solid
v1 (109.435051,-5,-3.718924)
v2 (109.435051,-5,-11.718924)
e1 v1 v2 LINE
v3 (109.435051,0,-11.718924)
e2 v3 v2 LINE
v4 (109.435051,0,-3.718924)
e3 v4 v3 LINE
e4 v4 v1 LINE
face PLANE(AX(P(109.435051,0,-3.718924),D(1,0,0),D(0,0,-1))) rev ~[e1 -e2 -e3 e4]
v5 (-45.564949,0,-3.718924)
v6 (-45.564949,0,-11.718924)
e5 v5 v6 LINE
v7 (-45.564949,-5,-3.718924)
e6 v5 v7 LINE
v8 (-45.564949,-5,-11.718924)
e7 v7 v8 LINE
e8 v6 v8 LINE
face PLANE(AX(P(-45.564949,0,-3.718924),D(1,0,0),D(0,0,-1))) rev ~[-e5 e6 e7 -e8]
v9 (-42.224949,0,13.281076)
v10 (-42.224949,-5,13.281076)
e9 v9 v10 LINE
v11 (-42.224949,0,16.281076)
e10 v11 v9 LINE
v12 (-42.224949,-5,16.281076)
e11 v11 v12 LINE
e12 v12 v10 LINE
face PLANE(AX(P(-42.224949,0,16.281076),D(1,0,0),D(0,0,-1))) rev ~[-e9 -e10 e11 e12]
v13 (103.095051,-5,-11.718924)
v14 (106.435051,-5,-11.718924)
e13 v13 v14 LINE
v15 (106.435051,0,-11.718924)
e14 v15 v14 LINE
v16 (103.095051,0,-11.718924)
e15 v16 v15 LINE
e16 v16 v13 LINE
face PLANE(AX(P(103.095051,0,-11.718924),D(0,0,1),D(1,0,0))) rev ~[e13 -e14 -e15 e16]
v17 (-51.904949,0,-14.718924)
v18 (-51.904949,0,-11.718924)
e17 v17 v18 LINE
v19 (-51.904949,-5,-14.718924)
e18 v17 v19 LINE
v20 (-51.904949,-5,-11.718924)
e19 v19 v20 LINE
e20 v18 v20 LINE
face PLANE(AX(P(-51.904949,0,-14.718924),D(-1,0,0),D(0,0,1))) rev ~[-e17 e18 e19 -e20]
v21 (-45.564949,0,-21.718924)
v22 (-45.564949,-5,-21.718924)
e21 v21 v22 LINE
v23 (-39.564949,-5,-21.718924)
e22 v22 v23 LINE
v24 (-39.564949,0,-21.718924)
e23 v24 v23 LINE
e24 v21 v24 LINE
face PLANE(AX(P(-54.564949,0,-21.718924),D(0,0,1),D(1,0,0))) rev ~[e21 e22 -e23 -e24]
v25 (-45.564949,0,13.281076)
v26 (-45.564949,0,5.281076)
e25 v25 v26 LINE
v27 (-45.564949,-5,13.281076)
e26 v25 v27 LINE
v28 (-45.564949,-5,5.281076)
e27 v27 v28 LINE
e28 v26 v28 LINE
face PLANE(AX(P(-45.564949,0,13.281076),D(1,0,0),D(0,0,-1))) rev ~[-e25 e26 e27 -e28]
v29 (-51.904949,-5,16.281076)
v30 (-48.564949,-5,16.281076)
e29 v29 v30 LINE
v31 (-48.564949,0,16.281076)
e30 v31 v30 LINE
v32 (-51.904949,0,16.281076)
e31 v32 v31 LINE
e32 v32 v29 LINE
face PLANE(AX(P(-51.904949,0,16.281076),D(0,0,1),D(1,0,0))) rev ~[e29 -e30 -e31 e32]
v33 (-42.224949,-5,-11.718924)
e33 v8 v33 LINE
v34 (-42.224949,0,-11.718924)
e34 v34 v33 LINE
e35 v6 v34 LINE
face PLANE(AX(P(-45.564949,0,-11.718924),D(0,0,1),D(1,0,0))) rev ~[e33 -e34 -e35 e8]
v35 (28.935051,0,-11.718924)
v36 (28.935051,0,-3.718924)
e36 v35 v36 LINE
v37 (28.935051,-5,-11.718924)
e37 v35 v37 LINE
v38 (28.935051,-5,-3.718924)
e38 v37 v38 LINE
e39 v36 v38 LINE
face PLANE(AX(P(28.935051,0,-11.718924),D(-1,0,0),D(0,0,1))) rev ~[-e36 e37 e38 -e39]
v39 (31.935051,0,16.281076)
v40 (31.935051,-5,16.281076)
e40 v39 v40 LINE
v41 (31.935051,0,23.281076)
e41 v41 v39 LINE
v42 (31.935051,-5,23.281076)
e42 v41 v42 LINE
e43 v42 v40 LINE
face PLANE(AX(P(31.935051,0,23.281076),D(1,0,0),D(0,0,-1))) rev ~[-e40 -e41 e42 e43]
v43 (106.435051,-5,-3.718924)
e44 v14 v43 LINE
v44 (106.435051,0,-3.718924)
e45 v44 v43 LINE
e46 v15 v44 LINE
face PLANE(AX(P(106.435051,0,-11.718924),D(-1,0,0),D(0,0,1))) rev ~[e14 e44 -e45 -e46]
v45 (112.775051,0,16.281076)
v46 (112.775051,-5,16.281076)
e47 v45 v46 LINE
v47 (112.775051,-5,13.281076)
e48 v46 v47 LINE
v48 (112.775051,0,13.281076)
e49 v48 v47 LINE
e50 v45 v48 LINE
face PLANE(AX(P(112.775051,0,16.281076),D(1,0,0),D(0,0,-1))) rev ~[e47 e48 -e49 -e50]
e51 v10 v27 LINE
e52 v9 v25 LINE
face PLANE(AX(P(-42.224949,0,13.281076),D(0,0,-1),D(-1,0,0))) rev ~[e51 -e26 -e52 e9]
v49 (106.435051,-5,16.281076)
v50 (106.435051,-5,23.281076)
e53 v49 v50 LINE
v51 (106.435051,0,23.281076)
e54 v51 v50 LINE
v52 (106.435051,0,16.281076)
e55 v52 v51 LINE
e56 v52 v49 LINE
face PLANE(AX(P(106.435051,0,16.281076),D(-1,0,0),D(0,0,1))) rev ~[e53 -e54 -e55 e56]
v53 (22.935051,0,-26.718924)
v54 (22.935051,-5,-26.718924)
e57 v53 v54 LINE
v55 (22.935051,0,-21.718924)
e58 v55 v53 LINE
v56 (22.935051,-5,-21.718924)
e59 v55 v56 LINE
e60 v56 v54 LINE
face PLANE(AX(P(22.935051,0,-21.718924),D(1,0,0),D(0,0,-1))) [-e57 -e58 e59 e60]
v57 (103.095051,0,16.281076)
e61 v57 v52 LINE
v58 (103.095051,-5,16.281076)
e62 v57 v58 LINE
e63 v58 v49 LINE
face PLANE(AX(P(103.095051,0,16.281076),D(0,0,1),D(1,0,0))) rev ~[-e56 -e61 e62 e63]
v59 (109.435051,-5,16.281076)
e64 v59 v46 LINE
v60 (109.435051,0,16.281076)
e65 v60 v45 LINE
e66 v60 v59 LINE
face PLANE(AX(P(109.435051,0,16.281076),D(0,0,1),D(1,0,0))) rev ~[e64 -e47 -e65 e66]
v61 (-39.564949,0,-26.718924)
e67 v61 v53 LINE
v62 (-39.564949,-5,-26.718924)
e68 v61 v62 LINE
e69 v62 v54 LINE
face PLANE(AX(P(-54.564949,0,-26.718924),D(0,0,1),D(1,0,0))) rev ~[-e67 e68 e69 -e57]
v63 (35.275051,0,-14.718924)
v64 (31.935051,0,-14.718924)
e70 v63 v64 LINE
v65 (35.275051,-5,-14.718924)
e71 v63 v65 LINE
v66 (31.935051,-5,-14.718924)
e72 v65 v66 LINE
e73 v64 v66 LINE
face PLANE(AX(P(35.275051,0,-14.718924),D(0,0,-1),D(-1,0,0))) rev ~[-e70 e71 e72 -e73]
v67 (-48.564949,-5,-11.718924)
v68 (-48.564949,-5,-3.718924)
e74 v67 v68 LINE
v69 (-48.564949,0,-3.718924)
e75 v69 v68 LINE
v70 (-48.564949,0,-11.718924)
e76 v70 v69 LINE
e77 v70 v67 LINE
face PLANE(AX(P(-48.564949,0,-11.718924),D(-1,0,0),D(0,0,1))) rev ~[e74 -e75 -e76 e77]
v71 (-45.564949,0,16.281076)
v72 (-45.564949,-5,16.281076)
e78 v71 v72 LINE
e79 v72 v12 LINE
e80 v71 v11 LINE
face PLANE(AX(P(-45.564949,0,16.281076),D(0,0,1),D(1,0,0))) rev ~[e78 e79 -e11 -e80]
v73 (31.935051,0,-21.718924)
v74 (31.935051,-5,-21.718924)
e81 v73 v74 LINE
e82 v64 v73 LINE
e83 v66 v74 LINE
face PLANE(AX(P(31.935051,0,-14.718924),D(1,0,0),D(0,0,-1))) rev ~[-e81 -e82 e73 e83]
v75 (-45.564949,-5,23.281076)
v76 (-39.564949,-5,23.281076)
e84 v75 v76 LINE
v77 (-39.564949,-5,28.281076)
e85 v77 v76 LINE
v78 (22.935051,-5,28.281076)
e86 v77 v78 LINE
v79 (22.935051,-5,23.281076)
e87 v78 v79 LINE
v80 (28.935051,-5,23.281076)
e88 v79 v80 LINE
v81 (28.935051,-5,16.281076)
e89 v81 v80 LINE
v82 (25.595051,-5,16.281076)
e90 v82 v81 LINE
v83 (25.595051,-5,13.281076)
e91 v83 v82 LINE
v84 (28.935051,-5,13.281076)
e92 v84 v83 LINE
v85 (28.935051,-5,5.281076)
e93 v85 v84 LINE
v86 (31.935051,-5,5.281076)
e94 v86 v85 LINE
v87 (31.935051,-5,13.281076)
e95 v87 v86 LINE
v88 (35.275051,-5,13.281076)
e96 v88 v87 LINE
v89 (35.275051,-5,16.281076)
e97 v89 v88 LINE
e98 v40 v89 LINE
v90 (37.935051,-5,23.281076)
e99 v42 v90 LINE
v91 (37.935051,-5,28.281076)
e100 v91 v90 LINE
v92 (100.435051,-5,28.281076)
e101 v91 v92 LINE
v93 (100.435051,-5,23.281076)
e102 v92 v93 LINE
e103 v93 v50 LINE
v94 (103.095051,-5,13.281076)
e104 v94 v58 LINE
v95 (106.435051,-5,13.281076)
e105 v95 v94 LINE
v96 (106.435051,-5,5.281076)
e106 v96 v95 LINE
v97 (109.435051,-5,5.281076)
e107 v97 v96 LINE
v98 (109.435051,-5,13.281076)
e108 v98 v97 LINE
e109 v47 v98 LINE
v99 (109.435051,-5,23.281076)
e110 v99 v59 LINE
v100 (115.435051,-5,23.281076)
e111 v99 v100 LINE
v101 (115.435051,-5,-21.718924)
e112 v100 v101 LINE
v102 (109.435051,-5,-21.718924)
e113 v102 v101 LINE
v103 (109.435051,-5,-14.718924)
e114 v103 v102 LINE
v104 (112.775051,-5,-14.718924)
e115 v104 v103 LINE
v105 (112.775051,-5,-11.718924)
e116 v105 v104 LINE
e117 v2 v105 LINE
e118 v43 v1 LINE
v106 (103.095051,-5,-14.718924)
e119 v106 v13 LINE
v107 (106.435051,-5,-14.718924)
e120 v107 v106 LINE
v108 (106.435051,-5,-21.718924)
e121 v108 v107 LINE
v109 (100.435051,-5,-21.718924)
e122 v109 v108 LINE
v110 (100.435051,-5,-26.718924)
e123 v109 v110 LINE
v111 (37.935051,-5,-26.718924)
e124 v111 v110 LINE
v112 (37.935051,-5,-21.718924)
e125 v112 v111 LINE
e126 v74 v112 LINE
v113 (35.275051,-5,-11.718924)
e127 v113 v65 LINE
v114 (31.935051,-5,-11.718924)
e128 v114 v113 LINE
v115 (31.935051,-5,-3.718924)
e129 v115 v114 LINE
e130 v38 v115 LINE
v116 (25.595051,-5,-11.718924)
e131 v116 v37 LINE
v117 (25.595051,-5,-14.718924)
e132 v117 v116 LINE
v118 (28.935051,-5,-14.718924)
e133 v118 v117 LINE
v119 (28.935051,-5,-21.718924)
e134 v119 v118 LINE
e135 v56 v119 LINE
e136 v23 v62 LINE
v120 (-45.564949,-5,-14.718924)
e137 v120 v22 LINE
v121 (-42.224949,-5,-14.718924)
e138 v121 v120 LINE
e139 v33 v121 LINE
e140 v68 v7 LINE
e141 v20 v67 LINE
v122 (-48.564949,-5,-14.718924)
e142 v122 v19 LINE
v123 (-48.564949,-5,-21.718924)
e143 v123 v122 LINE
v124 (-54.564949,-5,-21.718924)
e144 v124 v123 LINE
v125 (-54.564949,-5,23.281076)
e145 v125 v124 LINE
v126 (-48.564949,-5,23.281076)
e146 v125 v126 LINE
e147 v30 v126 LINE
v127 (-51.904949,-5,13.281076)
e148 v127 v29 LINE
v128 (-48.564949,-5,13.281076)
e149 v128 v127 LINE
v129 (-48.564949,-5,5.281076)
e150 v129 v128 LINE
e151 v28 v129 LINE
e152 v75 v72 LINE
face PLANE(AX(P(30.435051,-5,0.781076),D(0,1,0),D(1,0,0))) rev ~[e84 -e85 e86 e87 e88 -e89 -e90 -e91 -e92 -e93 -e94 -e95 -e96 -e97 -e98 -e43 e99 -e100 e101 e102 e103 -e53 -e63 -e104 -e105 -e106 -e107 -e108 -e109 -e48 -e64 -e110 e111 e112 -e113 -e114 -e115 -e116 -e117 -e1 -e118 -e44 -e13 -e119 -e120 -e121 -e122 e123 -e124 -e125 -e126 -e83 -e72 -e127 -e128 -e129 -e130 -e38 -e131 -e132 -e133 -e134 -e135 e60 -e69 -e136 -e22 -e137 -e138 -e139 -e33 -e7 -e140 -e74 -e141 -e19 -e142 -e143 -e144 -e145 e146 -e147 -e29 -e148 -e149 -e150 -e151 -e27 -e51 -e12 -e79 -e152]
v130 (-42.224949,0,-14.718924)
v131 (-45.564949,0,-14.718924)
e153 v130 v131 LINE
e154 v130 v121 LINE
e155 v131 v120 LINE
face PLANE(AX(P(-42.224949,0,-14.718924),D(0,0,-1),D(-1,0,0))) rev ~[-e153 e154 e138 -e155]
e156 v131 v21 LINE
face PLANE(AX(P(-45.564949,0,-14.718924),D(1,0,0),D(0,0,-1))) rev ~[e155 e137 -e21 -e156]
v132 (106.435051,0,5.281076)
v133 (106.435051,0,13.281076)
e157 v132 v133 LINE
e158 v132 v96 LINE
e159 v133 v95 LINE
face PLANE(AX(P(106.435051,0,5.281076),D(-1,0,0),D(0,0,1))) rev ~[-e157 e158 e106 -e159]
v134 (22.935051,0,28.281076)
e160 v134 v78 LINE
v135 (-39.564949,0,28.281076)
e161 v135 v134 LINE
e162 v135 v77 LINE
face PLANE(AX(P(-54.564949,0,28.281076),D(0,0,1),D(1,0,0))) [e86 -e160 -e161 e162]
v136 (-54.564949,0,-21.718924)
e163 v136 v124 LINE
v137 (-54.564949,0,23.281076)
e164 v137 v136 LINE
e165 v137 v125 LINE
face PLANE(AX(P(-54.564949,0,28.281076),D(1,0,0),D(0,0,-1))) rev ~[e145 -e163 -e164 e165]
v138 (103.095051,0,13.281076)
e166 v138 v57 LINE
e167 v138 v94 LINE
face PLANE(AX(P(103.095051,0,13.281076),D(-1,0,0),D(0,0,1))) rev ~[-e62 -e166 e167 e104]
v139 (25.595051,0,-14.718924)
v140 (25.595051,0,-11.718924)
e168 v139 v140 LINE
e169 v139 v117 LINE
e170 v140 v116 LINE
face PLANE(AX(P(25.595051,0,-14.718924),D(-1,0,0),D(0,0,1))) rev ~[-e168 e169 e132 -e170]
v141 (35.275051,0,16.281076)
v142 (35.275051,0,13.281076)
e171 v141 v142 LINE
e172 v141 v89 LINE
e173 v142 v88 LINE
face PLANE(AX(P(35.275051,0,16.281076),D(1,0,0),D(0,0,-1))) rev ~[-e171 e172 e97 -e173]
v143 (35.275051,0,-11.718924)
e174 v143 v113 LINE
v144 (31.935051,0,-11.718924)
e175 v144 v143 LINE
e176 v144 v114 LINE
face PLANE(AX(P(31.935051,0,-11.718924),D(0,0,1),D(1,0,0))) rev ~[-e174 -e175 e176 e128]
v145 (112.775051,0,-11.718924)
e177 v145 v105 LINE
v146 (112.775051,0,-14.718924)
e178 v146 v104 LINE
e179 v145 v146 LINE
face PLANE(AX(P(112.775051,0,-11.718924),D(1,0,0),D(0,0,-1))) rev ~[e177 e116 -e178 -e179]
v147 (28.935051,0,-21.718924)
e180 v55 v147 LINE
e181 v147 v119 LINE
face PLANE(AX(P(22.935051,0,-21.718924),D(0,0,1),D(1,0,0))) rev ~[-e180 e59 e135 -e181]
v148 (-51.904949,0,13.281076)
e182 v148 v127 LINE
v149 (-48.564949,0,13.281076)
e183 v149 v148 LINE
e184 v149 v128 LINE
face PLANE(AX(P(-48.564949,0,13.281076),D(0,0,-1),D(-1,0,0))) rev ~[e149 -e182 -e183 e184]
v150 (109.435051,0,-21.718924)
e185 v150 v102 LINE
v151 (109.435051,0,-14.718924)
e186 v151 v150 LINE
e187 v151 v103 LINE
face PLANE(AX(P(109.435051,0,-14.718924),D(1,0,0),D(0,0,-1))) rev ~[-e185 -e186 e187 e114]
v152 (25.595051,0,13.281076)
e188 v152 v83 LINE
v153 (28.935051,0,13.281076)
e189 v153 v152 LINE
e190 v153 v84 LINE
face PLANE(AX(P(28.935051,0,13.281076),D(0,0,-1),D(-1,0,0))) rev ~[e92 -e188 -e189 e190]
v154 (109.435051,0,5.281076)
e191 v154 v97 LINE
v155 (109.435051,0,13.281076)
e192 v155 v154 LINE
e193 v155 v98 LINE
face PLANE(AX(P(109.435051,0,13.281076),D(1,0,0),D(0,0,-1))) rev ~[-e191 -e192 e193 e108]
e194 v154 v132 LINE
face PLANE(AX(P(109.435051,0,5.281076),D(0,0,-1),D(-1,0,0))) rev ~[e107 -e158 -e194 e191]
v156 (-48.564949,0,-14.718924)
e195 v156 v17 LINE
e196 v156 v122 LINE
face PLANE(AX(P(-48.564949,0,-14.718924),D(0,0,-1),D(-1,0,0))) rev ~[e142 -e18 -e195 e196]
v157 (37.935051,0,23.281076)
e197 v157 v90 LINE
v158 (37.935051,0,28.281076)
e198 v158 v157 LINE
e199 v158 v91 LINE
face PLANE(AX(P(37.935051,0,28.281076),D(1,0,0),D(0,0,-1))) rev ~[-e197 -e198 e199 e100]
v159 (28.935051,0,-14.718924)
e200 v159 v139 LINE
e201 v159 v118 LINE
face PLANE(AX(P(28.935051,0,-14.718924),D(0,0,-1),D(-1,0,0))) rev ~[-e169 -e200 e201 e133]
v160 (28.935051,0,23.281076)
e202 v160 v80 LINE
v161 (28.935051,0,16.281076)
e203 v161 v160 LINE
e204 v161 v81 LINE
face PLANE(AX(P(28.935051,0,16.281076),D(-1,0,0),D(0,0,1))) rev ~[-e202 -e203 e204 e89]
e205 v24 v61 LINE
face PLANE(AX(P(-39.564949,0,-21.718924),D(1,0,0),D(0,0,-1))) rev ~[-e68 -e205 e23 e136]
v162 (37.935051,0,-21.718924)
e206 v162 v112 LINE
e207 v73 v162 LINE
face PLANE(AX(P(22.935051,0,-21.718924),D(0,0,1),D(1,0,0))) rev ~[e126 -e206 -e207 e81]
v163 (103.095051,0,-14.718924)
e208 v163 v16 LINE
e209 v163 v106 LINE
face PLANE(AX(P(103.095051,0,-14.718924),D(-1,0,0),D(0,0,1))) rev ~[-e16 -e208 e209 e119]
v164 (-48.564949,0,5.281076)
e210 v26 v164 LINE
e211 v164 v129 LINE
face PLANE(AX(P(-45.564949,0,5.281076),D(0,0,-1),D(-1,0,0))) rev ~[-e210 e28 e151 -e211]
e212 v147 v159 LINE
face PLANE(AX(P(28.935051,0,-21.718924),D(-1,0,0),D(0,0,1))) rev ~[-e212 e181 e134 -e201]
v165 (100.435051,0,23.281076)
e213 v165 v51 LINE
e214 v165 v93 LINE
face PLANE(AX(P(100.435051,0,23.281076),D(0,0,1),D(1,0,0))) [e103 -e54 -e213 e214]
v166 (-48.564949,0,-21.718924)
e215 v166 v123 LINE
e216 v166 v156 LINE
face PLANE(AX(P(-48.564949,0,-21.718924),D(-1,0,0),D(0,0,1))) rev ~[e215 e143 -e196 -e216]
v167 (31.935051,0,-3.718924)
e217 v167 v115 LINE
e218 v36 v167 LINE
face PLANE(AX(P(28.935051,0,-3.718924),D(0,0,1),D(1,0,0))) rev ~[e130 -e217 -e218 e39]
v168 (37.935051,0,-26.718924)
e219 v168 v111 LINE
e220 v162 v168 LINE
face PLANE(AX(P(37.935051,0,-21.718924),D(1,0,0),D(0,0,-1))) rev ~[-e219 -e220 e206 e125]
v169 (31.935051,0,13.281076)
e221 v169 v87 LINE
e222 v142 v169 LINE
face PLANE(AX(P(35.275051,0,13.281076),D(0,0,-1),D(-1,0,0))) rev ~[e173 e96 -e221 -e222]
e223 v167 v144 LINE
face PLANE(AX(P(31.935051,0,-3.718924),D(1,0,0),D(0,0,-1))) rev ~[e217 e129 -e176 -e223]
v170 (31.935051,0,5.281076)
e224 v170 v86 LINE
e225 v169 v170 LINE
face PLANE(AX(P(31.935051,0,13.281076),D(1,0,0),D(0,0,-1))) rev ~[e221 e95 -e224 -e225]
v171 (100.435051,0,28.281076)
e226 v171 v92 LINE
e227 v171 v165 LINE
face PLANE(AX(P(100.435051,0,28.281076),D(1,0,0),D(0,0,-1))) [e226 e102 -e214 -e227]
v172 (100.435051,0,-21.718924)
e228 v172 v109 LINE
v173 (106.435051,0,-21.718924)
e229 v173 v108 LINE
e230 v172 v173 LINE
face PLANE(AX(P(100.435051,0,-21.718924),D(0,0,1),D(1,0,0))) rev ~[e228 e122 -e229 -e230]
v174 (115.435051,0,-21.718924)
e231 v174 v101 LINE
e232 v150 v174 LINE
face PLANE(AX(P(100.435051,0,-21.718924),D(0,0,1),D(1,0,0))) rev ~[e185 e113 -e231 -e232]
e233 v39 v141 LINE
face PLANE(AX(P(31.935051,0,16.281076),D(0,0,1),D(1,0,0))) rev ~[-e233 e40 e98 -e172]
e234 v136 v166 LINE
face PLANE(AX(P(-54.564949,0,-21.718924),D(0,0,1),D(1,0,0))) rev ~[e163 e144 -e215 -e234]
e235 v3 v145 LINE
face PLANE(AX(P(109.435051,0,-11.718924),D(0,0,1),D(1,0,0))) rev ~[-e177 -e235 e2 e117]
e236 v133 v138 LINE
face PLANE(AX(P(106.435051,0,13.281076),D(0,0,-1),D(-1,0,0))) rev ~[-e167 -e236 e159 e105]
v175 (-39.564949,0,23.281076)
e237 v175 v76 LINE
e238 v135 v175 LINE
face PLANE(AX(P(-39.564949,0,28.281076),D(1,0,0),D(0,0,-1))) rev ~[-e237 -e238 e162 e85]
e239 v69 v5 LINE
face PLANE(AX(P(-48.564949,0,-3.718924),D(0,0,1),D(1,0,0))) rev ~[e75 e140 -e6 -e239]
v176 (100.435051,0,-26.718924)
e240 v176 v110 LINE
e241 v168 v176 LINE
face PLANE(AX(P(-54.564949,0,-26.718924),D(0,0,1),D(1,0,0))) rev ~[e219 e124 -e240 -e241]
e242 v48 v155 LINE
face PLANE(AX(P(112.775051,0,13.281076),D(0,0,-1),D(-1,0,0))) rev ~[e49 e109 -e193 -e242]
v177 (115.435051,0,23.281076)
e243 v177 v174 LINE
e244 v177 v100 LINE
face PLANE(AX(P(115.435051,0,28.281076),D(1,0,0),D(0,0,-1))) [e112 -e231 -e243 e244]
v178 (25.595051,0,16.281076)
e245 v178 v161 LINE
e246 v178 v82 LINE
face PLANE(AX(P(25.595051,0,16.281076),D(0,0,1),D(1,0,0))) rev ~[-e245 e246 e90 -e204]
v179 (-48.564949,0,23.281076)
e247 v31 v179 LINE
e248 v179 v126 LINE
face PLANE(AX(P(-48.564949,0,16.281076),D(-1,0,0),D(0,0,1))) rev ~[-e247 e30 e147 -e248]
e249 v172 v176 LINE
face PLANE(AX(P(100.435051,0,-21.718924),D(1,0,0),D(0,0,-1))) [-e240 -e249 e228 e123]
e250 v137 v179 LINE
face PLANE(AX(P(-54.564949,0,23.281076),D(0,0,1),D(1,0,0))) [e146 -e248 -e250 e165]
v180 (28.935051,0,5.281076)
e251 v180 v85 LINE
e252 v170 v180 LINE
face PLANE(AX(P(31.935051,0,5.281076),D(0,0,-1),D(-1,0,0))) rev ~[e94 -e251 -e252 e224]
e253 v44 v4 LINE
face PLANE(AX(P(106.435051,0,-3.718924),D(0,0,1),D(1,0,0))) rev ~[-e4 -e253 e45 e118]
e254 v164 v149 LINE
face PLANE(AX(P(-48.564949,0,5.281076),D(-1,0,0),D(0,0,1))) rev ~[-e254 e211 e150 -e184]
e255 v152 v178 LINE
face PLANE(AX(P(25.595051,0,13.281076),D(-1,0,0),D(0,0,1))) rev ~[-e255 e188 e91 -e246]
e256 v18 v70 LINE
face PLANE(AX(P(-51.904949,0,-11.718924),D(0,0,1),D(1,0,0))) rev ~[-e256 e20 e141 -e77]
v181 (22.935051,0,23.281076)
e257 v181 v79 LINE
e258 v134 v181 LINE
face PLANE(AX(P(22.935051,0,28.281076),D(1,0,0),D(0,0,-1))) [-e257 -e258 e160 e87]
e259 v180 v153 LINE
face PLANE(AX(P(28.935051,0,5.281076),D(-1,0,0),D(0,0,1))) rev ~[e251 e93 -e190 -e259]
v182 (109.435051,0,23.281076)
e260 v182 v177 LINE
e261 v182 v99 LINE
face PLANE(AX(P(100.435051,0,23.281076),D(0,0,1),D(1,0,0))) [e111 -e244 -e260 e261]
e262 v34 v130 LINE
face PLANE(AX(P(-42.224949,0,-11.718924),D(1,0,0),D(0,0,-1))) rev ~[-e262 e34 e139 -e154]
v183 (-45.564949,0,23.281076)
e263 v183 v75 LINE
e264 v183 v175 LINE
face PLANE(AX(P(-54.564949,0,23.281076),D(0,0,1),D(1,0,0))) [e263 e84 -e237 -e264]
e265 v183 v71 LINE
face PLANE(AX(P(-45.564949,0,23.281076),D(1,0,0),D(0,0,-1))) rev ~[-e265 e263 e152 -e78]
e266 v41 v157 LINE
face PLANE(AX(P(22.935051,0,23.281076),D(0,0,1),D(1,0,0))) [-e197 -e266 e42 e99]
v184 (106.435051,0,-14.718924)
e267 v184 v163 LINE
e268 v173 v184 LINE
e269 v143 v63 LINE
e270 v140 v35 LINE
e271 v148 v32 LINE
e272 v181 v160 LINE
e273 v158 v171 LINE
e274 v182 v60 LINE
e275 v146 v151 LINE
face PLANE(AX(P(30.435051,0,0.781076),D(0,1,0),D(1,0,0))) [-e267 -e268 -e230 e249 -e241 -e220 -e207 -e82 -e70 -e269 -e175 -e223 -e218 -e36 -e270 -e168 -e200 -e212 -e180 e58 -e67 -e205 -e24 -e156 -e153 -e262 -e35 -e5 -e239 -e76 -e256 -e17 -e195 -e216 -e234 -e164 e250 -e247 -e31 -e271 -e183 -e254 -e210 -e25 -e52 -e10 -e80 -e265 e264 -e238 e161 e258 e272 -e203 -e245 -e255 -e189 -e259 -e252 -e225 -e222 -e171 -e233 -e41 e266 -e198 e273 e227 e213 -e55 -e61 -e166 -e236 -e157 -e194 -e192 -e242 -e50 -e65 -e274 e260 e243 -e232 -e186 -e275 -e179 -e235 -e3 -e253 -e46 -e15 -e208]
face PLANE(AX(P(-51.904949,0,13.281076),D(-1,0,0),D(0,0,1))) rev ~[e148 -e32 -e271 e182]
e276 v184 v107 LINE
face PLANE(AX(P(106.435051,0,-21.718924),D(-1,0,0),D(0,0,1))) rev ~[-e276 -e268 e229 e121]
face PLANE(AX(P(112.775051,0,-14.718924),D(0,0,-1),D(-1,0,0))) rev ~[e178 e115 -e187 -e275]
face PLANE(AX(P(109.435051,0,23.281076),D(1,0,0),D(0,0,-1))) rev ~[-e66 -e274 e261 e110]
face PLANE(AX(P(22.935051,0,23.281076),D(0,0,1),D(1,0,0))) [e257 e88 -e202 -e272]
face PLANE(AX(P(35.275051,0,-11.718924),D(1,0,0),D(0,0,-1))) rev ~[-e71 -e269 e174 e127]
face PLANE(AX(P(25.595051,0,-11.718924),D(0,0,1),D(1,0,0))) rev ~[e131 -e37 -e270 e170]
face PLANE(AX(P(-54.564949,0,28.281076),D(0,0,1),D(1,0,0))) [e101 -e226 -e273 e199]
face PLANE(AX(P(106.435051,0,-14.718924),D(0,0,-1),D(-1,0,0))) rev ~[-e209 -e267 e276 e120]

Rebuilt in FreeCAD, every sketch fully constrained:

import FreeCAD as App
import Part
import Sketcher

V = App.Vector
Q = App.Units.Quantity

doc = App.newDocument("Part")
body = doc.addObject("PartDesign::Body", "Body")

# Sketch on XZ plane
sketch1 = doc.addObject("Sketcher::SketchObject", "Sketch")
body.addObject(sketch1)
sketch1.AttachmentSupport = (doc.XZ_Plane, [""])
sketch1.MapMode = "FlatFace"
sketch1.addGeometry(Part.LineSegment(V(-55, -27, 0), V(-55, 28, 0)), False)
sketch1.addGeometry(Part.LineSegment(V(-55, 28, 0), V(115, 28, 0)), False)
sketch1.addGeometry(Part.LineSegment(V(115, 28, 0), V(115, -27, 0)), False)
sketch1.addGeometry(Part.LineSegment(V(115, -27, 0), V(-55, -27, 0)), False)
sketch1.addConstraint(Sketcher.Constraint("Coincident", 0, 2, 1, 1))
sketch1.addConstraint(Sketcher.Constraint("Coincident", 1, 2, 2, 1))
sketch1.addConstraint(Sketcher.Constraint("Coincident", 2, 2, 3, 1))
sketch1.addConstraint(Sketcher.Constraint("Coincident", 3, 2, 0, 1))
sketch1.addConstraint(Sketcher.Constraint("Vertical", 0))
sketch1.addConstraint(Sketcher.Constraint("Horizontal", 1))
sketch1.addConstraint(Sketcher.Constraint("Vertical", 2))
sketch1.addConstraint(Sketcher.Constraint("Horizontal", 3))
sketch1.addConstraint(Sketcher.Constraint("DistanceX", 1, 1, 1, 2, Q("170 mm")))
sketch1.addConstraint(Sketcher.Constraint("DistanceY", 0, 1, 0, 2, Q("55 mm")))
sketch1.addConstraint(Sketcher.Constraint("DistanceX", 0, 2, -1, 1, Q("54.564949 mm")))
sketch1.addConstraint(Sketcher.Constraint("DistanceY", -1, 1, 0, 2, Q("28.281076 mm")))
pad1 = doc.addObject("PartDesign::Pad", "Pad")
body.addObject(pad1)
pad1.Profile = sketch1
pad1.Length = 5

# Sketch on XZ plane
sketch2 = doc.addObject("Sketcher::SketchObject", "Sketch001")
body.addObject(sketch2)
sketch2.AttachmentSupport = (doc.XZ_Plane, [""])
sketch2.MapMode = "FlatFace"
sketch2.addGeometry(Part.LineSegment(V(-55, 23, 0), V(-55, 28, 0)), False)
sketch2.addGeometry(Part.LineSegment(V(-55, 28, 0), V(-40, 28, 0)), False)
sketch2.addGeometry(Part.LineSegment(V(-40, 28, 0), V(-40, 23, 0)), False)
sketch2.addGeometry(Part.LineSegment(V(-40, 23, 0), V(-55, 23, 0)), False)
sketch2.addGeometry(Part.LineSegment(V(-55, -27, 0), V(-55, -22, 0)), False)
sketch2.addGeometry(Part.LineSegment(V(-55, -22, 0), V(-40, -22, 0)), False)
sketch2.addGeometry(Part.LineSegment(V(-40, -22, 0), V(-40, -27, 0)), False)
sketch2.addGeometry(Part.LineSegment(V(-40, -27, 0), V(-55, -27, 0)), False)
sketch2.addGeometry(Part.LineSegment(V(100, 23, 0), V(100, 28, 0)), False)
sketch2.addGeometry(Part.LineSegment(V(100, 28, 0), V(115, 28, 0)), False)
sketch2.addGeometry(Part.LineSegment(V(115, 28, 0), V(115, 23, 0)), False)
sketch2.addGeometry(Part.LineSegment(V(115, 23, 0), V(100, 23, 0)), False)
sketch2.addGeometry(Part.LineSegment(V(100, -27, 0), V(100, -22, 0)), False)
sketch2.addGeometry(Part.LineSegment(V(100, -22, 0), V(115, -22, 0)), False)
sketch2.addGeometry(Part.LineSegment(V(115, -22, 0), V(115, -27, 0)), False)
sketch2.addGeometry(Part.LineSegment(V(115, -27, 0), V(100, -27, 0)), False)
sketch2.addGeometry(Part.LineSegment(V(23, 23, 0), V(23, 28, 0)), False)
sketch2.addGeometry(Part.LineSegment(V(23, 28, 0), V(38, 28, 0)), False)
sketch2.addGeometry(Part.LineSegment(V(38, 28, 0), V(38, 23, 0)), False)
sketch2.addGeometry(Part.LineSegment(V(38, 23, 0), V(23, 23, 0)), False)
sketch2.addGeometry(Part.LineSegment(V(23, -27, 0), V(23, -22, 0)), False)
sketch2.addGeometry(Part.LineSegment(V(23, -22, 0), V(38, -22, 0)), False)
sketch2.addGeometry(Part.LineSegment(V(38, -22, 0), V(38, -27, 0)), False)
sketch2.addGeometry(Part.LineSegment(V(38, -27, 0), V(23, -27, 0)), False)
sketch2.addConstraint(Sketcher.Constraint("Coincident", 0, 2, 1, 1))
sketch2.addConstraint(Sketcher.Constraint("Coincident", 1, 2, 2, 1))
sketch2.addConstraint(Sketcher.Constraint("Coincident", 2, 2, 3, 1))
sketch2.addConstraint(Sketcher.Constraint("Coincident", 3, 2, 0, 1))
sketch2.addConstraint(Sketcher.Constraint("Coincident", 4, 2, 5, 1))
sketch2.addConstraint(Sketcher.Constraint("Coincident", 5, 2, 6, 1))
sketch2.addConstraint(Sketcher.Constraint("Coincident", 6, 2, 7, 1))
sketch2.addConstraint(Sketcher.Constraint("Coincident", 7, 2, 4, 1))
sketch2.addConstraint(Sketcher.Constraint("Coincident", 8, 2, 9, 1))
sketch2.addConstraint(Sketcher.Constraint("Coincident", 9, 2, 10, 1))
sketch2.addConstraint(Sketcher.Constraint("Coincident", 10, 2, 11, 1))
sketch2.addConstraint(Sketcher.Constraint("Coincident", 11, 2, 8, 1))
sketch2.addConstraint(Sketcher.Constraint("Coincident", 12, 2, 13, 1))
sketch2.addConstraint(Sketcher.Constraint("Coincident", 13, 2, 14, 1))
sketch2.addConstraint(Sketcher.Constraint("Coincident", 14, 2, 15, 1))
sketch2.addConstraint(Sketcher.Constraint("Coincident", 15, 2, 12, 1))
sketch2.addConstraint(Sketcher.Constraint("Coincident", 16, 2, 17, 1))
sketch2.addConstraint(Sketcher.Constraint("Coincident", 17, 2, 18, 1))
sketch2.addConstraint(Sketcher.Constraint("Coincident", 18, 2, 19, 1))
sketch2.addConstraint(Sketcher.Constraint("Coincident", 19, 2, 16, 1))
sketch2.addConstraint(Sketcher.Constraint("Coincident", 20, 2, 21, 1))
sketch2.addConstraint(Sketcher.Constraint("Coincident", 21, 2, 22, 1))
sketch2.addConstraint(Sketcher.Constraint("Coincident", 22, 2, 23, 1))
sketch2.addConstraint(Sketcher.Constraint("Coincident", 23, 2, 20, 1))
sketch2.addConstraint(Sketcher.Constraint("Vertical", 0))
sketch2.addConstraint(Sketcher.Constraint("Horizontal", 1))
sketch2.addConstraint(Sketcher.Constraint("Vertical", 2))
sketch2.addConstraint(Sketcher.Constraint("Horizontal", 3))
sketch2.addConstraint(Sketcher.Constraint("Vertical", 4))
sketch2.addConstraint(Sketcher.Constraint("Horizontal", 5))
sketch2.addConstraint(Sketcher.Constraint("Vertical", 6))
sketch2.addConstraint(Sketcher.Constraint("Horizontal", 7))
sketch2.addConstraint(Sketcher.Constraint("Vertical", 8))
sketch2.addConstraint(Sketcher.Constraint("Horizontal", 9))
sketch2.addConstraint(Sketcher.Constraint("Vertical", 10))
sketch2.addConstraint(Sketcher.Constraint("Horizontal", 11))
sketch2.addConstraint(Sketcher.Constraint("Vertical", 12))
sketch2.addConstraint(Sketcher.Constraint("Horizontal", 13))
sketch2.addConstraint(Sketcher.Constraint("Vertical", 14))
sketch2.addConstraint(Sketcher.Constraint("Horizontal", 15))
sketch2.addConstraint(Sketcher.Constraint("Vertical", 16))
sketch2.addConstraint(Sketcher.Constraint("Horizontal", 17))
sketch2.addConstraint(Sketcher.Constraint("Vertical", 18))
sketch2.addConstraint(Sketcher.Constraint("Horizontal", 19))
sketch2.addConstraint(Sketcher.Constraint("Vertical", 20))
sketch2.addConstraint(Sketcher.Constraint("Horizontal", 21))
sketch2.addConstraint(Sketcher.Constraint("Vertical", 22))
sketch2.addConstraint(Sketcher.Constraint("Horizontal", 23))
sketch2.addConstraint(Sketcher.Constraint("Horizontal", 1, 2, 8, 2))
sketch2.addConstraint(Sketcher.Constraint("Horizontal", 3, 2, 10, 2))
sketch2.addConstraint(Sketcher.Constraint("Horizontal", 5, 2, 12, 2))
sketch2.addConstraint(Sketcher.Constraint("Horizontal", 7, 2, 14, 2))
sketch2.addConstraint(Sketcher.Constraint("Horizontal", 9, 2, 16, 2))
sketch2.addConstraint(Sketcher.Constraint("Horizontal", 11, 2, 18, 2))
sketch2.addConstraint(Sketcher.Constraint("Horizontal", 13, 2, 20, 2))
sketch2.addConstraint(Sketcher.Constraint("Horizontal", 15, 2, 22, 2))
sketch2.addConstraint(Sketcher.Constraint("Vertical", 3, 2, 4, 2))
sketch2.addConstraint(Sketcher.Constraint("Vertical", 2, 2, 5, 2))
sketch2.addConstraint(Sketcher.Constraint("Vertical", 11, 2, 12, 2))
sketch2.addConstraint(Sketcher.Constraint("Vertical", 10, 2, 13, 2))
sketch2.addConstraint(Sketcher.Constraint("Vertical", 19, 2, 20, 2))
sketch2.addConstraint(Sketcher.Constraint("Vertical", 18, 2, 21, 2))
sketch2.addConstraint(Sketcher.Constraint("Equal", 7, 9))
sketch2.addConstraint(Sketcher.Constraint("Equal", 15, 17))
sketch2.addConstraint(Sketcher.Constraint("Equal", 2, 4))
sketch2.addConstraint(Sketcher.Constraint("DistanceX", 1, 1, 1, 2, Q("15 mm")))
sketch2.addConstraint(Sketcher.Constraint("DistanceY", 0, 1, 0, 2, Q("5 mm")))
sketch2.addConstraint(Sketcher.Constraint("DistanceY", 4, 2, 3, 2, Q("45 mm")))
sketch2.addConstraint(Sketcher.Constraint("DistanceX", 1, 2, 8, 2, Q("140 mm")))
sketch2.addConstraint(Sketcher.Constraint("DistanceX", 1, 2, 16, 2, Q("62.5 mm")))
sketch2.addConstraint(Sketcher.Constraint("DistanceX", 0, 2, -1, 1, Q("54.564949 mm")))
sketch2.addConstraint(Sketcher.Constraint("DistanceY", -1, 1, 0, 2, Q("28.281076 mm")))
pocket1 = doc.addObject("PartDesign::Pocket", "Pocket")
body.addObject(pocket1)
pocket1.Profile = sketch2
pocket1.Type = "ThroughAll"
pocket1.Reversed = True

# Sketch on XZ plane
sketch3 = doc.addObject("Sketcher::SketchObject", "Sketch002")
body.addObject(sketch3)
sketch3.AttachmentSupport = (doc.XZ_Plane, [""])
sketch3.MapMode = "FlatFace"
sketch3.addGeometry(Part.LineSegment(V(-48.6, 23.3, 0), V(-45.6, 23.3, 0)), False)
sketch3.addGeometry(Part.LineSegment(V(-45.6, 23.3, 0), V(-45.6, 16.3, 0)), False)
sketch3.addGeometry(Part.LineSegment(V(-45.6, 16.3, 0), V(-42.2, 16.3, 0)), False)
sketch3.addGeometry(Part.LineSegment(V(-42.2, 16.3, 0), V(-42.2, 13.3, 0)), False)
sketch3.addGeometry(Part.LineSegment(V(-42.2, 13.3, 0), V(-45.6, 13.3, 0)), False)
sketch3.addGeometry(Part.LineSegment(V(-45.6, 13.3, 0), V(-45.6, 5.3, 0)), False)
sketch3.addGeometry(Part.LineSegment(V(-45.6, 5.3, 0), V(-48.6, 5.3, 0)), False)
sketch3.addGeometry(Part.LineSegment(V(-48.6, 5.3, 0), V(-48.6, 13.3, 0)), False)
sketch3.addGeometry(Part.LineSegment(V(-48.6, 13.3, 0), V(-51.9, 13.3, 0)), False)
sketch3.addGeometry(Part.LineSegment(V(-51.9, 13.3, 0), V(-51.9, 16.3, 0)), False)
sketch3.addGeometry(Part.LineSegment(V(-51.9, 16.3, 0), V(-48.6, 16.3, 0)), False)
sketch3.addGeometry(Part.LineSegment(V(-48.6, 16.3, 0), V(-48.6, 23.3, 0)), False)
sketch3.addGeometry(Part.LineSegment(V(28.9, 23.3, 0), V(31.9, 23.3, 0)), False)
sketch3.addGeometry(Part.LineSegment(V(31.9, 23.3, 0), V(31.9, 16.3, 0)), False)
sketch3.addGeometry(Part.LineSegment(V(31.9, 16.3, 0), V(35.3, 16.3, 0)), False)
sketch3.addGeometry(Part.LineSegment(V(35.3, 16.3, 0), V(35.3, 13.3, 0)), False)
sketch3.addGeometry(Part.LineSegment(V(35.3, 13.3, 0), V(31.9, 13.3, 0)), False)
sketch3.addGeometry(Part.LineSegment(V(31.9, 13.3, 0), V(31.9, 5.3, 0)), False)
sketch3.addGeometry(Part.LineSegment(V(31.9, 5.3, 0), V(28.9, 5.3, 0)), False)
sketch3.addGeometry(Part.LineSegment(V(28.9, 5.3, 0), V(28.9, 13.3, 0)), False)
sketch3.addGeometry(Part.LineSegment(V(28.9, 13.3, 0), V(25.6, 13.3, 0)), False)
sketch3.addGeometry(Part.LineSegment(V(25.6, 13.3, 0), V(25.6, 16.3, 0)), False)
sketch3.addGeometry(Part.LineSegment(V(25.6, 16.3, 0), V(28.9, 16.3, 0)), False)
sketch3.addGeometry(Part.LineSegment(V(28.9, 16.3, 0), V(28.9, 23.3, 0)), False)
sketch3.addGeometry(Part.LineSegment(V(106.4, 23.3, 0), V(109.4, 23.3, 0)), False)
sketch3.addGeometry(Part.LineSegment(V(109.4, 23.3, 0), V(109.4, 16.3, 0)), False)
sketch3.addGeometry(Part.LineSegment(V(109.4, 16.3, 0), V(112.8, 16.3, 0)), False)
sketch3.addGeometry(Part.LineSegment(V(112.8, 16.3, 0), V(112.8, 13.3, 0)), False)
sketch3.addGeometry(Part.LineSegment(V(112.8, 13.3, 0), V(109.4, 13.3, 0)), False)
sketch3.addGeometry(Part.LineSegment(V(109.4, 13.3, 0), V(109.4, 5.3, 0)), False)
sketch3.addGeometry(Part.LineSegment(V(109.4, 5.3, 0), V(106.4, 5.3, 0)), False)
sketch3.addGeometry(Part.LineSegment(V(106.4, 5.3, 0), V(106.4, 13.3, 0)), False)
sketch3.addGeometry(Part.LineSegment(V(106.4, 13.3, 0), V(103.1, 13.3, 0)), False)
sketch3.addGeometry(Part.LineSegment(V(103.1, 13.3, 0), V(103.1, 16.3, 0)), False)
sketch3.addGeometry(Part.LineSegment(V(103.1, 16.3, 0), V(106.4, 16.3, 0)), False)
sketch3.addGeometry(Part.LineSegment(V(106.4, 16.3, 0), V(106.4, 23.3, 0)), False)
sketch3.addGeometry(Part.LineSegment(V(106.4, -3.7, 0), V(109.4, -3.7, 0)), False)
sketch3.addGeometry(Part.LineSegment(V(109.4, -3.7, 0), V(109.4, -11.7, 0)), False)
sketch3.addGeometry(Part.LineSegment(V(109.4, -11.7, 0), V(112.8, -11.7, 0)), False)
sketch3.addGeometry(Part.LineSegment(V(112.8, -11.7, 0), V(112.8, -14.7, 0)), False)
sketch3.addGeometry(Part.LineSegment(V(112.8, -14.7, 0), V(109.4, -14.7, 0)), False)
sketch3.addGeometry(Part.LineSegment(V(109.4, -14.7, 0), V(109.4, -21.7, 0)), False)
sketch3.addGeometry(Part.LineSegment(V(109.4, -21.7, 0), V(106.4, -21.7, 0)), False)
sketch3.addGeometry(Part.LineSegment(V(106.4, -21.7, 0), V(106.4, -14.7, 0)), False)
sketch3.addGeometry(Part.LineSegment(V(106.4, -14.7, 0), V(103.1, -14.7, 0)), False)
sketch3.addGeometry(Part.LineSegment(V(103.1, -14.7, 0), V(103.1, -11.7, 0)), False)
sketch3.addGeometry(Part.LineSegment(V(103.1, -11.7, 0), V(106.4, -11.7, 0)), False)
sketch3.addGeometry(Part.LineSegment(V(106.4, -11.7, 0), V(106.4, -3.7, 0)), False)
sketch3.addGeometry(Part.LineSegment(V(28.9, -3.7, 0), V(31.9, -3.7, 0)), False)
sketch3.addGeometry(Part.LineSegment(V(31.9, -3.7, 0), V(31.9, -11.7, 0)), False)
sketch3.addGeometry(Part.LineSegment(V(31.9, -11.7, 0), V(35.3, -11.7, 0)), False)
sketch3.addGeometry(Part.LineSegment(V(35.3, -11.7, 0), V(35.3, -14.7, 0)), False)
sketch3.addGeometry(Part.LineSegment(V(35.3, -14.7, 0), V(31.9, -14.7, 0)), False)
sketch3.addGeometry(Part.LineSegment(V(31.9, -14.7, 0), V(31.9, -21.7, 0)), False)
sketch3.addGeometry(Part.LineSegment(V(31.9, -21.7, 0), V(28.9, -21.7, 0)), False)
sketch3.addGeometry(Part.LineSegment(V(28.9, -21.7, 0), V(28.9, -14.7, 0)), False)
sketch3.addGeometry(Part.LineSegment(V(28.9, -14.7, 0), V(25.6, -14.7, 0)), False)
sketch3.addGeometry(Part.LineSegment(V(25.6, -14.7, 0), V(25.6, -11.7, 0)), False)
sketch3.addGeometry(Part.LineSegment(V(25.6, -11.7, 0), V(28.9, -11.7, 0)), False)
sketch3.addGeometry(Part.LineSegment(V(28.9, -11.7, 0), V(28.9, -3.7, 0)), False)
sketch3.addGeometry(Part.LineSegment(V(-48.6, -3.7, 0), V(-45.6, -3.7, 0)), False)
sketch3.addGeometry(Part.LineSegment(V(-45.6, -3.7, 0), V(-45.6, -11.7, 0)), False)
sketch3.addGeometry(Part.LineSegment(V(-45.6, -11.7, 0), V(-42.2, -11.7, 0)), False)
sketch3.addGeometry(Part.LineSegment(V(-42.2, -11.7, 0), V(-42.2, -14.7, 0)), False)
sketch3.addGeometry(Part.LineSegment(V(-42.2, -14.7, 0), V(-45.6, -14.7, 0)), False)
sketch3.addGeometry(Part.LineSegment(V(-45.6, -14.7, 0), V(-45.6, -21.7, 0)), False)
sketch3.addGeometry(Part.LineSegment(V(-45.6, -21.7, 0), V(-48.6, -21.7, 0)), False)
sketch3.addGeometry(Part.LineSegment(V(-48.6, -21.7, 0), V(-48.6, -14.7, 0)), False)
sketch3.addGeometry(Part.LineSegment(V(-48.6, -14.7, 0), V(-51.9, -14.7, 0)), False)
sketch3.addGeometry(Part.LineSegment(V(-51.9, -14.7, 0), V(-51.9, -11.7, 0)), False)
sketch3.addGeometry(Part.LineSegment(V(-51.9, -11.7, 0), V(-48.6, -11.7, 0)), False)
sketch3.addGeometry(Part.LineSegment(V(-48.6, -11.7, 0), V(-48.6, -3.7, 0)), False)
sketch3.addConstraint(Sketcher.Constraint("Coincident", 0, 2, 1, 1))
sketch3.addConstraint(Sketcher.Constraint("Coincident", 1, 2, 2, 1))
sketch3.addConstraint(Sketcher.Constraint("Coincident", 2, 2, 3, 1))
sketch3.addConstraint(Sketcher.Constraint("Coincident", 3, 2, 4, 1))
sketch3.addConstraint(Sketcher.Constraint("Coincident", 4, 2, 5, 1))
sketch3.addConstraint(Sketcher.Constraint("Coincident", 5, 2, 6, 1))
sketch3.addConstraint(Sketcher.Constraint("Coincident", 6, 2, 7, 1))
sketch3.addConstraint(Sketcher.Constraint("Coincident", 7, 2, 8, 1))
sketch3.addConstraint(Sketcher.Constraint("Coincident", 8, 2, 9, 1))
sketch3.addConstraint(Sketcher.Constraint("Coincident", 9, 2, 10, 1))
sketch3.addConstraint(Sketcher.Constraint("Coincident", 10, 2, 11, 1))
sketch3.addConstraint(Sketcher.Constraint("Coincident", 11, 2, 0, 1))
sketch3.addConstraint(Sketcher.Constraint("Coincident", 12, 2, 13, 1))
sketch3.addConstraint(Sketcher.Constraint("Coincident", 13, 2, 14, 1))
sketch3.addConstraint(Sketcher.Constraint("Coincident", 14, 2, 15, 1))
sketch3.addConstraint(Sketcher.Constraint("Coincident", 15, 2, 16, 1))
sketch3.addConstraint(Sketcher.Constraint("Coincident", 16, 2, 17, 1))
sketch3.addConstraint(Sketcher.Constraint("Coincident", 17, 2, 18, 1))
sketch3.addConstraint(Sketcher.Constraint("Coincident", 18, 2, 19, 1))
sketch3.addConstraint(Sketcher.Constraint("Coincident", 19, 2, 20, 1))
sketch3.addConstraint(Sketcher.Constraint("Coincident", 20, 2, 21, 1))
sketch3.addConstraint(Sketcher.Constraint("Coincident", 21, 2, 22, 1))
sketch3.addConstraint(Sketcher.Constraint("Coincident", 22, 2, 23, 1))
sketch3.addConstraint(Sketcher.Constraint("Coincident", 23, 2, 12, 1))
sketch3.addConstraint(Sketcher.Constraint("Coincident", 24, 2, 25, 1))
sketch3.addConstraint(Sketcher.Constraint("Coincident", 25, 2, 26, 1))
sketch3.addConstraint(Sketcher.Constraint("Coincident", 26, 2, 27, 1))
sketch3.addConstraint(Sketcher.Constraint("Coincident", 27, 2, 28, 1))
sketch3.addConstraint(Sketcher.Constraint("Coincident", 28, 2, 29, 1))
sketch3.addConstraint(Sketcher.Constraint("Coincident", 29, 2, 30, 1))
sketch3.addConstraint(Sketcher.Constraint("Coincident", 30, 2, 31, 1))
sketch3.addConstraint(Sketcher.Constraint("Coincident", 31, 2, 32, 1))
sketch3.addConstraint(Sketcher.Constraint("Coincident", 32, 2, 33, 1))
sketch3.addConstraint(Sketcher.Constraint("Coincident", 33, 2, 34, 1))
sketch3.addConstraint(Sketcher.Constraint("Coincident", 34, 2, 35, 1))
sketch3.addConstraint(Sketcher.Constraint("Coincident", 35, 2, 24, 1))
sketch3.addConstraint(Sketcher.Constraint("Coincident", 36, 2, 37, 1))
sketch3.addConstraint(Sketcher.Constraint("Coincident", 37, 2, 38, 1))
sketch3.addConstraint(Sketcher.Constraint("Coincident", 38, 2, 39, 1))
sketch3.addConstraint(Sketcher.Constraint("Coincident", 39, 2, 40, 1))
sketch3.addConstraint(Sketcher.Constraint("Coincident", 40, 2, 41, 1))
sketch3.addConstraint(Sketcher.Constraint("Coincident", 41, 2, 42, 1))
sketch3.addConstraint(Sketcher.Constraint("Coincident", 42, 2, 43, 1))
sketch3.addConstraint(Sketcher.Constraint("Coincident", 43, 2, 44, 1))
sketch3.addConstraint(Sketcher.Constraint("Coincident", 44, 2, 45, 1))
sketch3.addConstraint(Sketcher.Constraint("Coincident", 45, 2, 46, 1))
sketch3.addConstraint(Sketcher.Constraint("Coincident", 46, 2, 47, 1))
sketch3.addConstraint(Sketcher.Constraint("Coincident", 47, 2, 36, 1))
sketch3.addConstraint(Sketcher.Constraint("Coincident", 48, 2, 49, 1))
sketch3.addConstraint(Sketcher.Constraint("Coincident", 49, 2, 50, 1))
sketch3.addConstraint(Sketcher.Constraint("Coincident", 50, 2, 51, 1))
sketch3.addConstraint(Sketcher.Constraint("Coincident", 51, 2, 52, 1))
sketch3.addConstraint(Sketcher.Constraint("Coincident", 52, 2, 53, 1))
sketch3.addConstraint(Sketcher.Constraint("Coincident", 53, 2, 54, 1))
sketch3.addConstraint(Sketcher.Constraint("Coincident", 54, 2, 55, 1))
sketch3.addConstraint(Sketcher.Constraint("Coincident", 55, 2, 56, 1))
sketch3.addConstraint(Sketcher.Constraint("Coincident", 56, 2, 57, 1))
sketch3.addConstraint(Sketcher.Constraint("Coincident", 57, 2, 58, 1))
sketch3.addConstraint(Sketcher.Constraint("Coincident", 58, 2, 59, 1))
sketch3.addConstraint(Sketcher.Constraint("Coincident", 59, 2, 48, 1))
sketch3.addConstraint(Sketcher.Constraint("Coincident", 60, 2, 61, 1))
sketch3.addConstraint(Sketcher.Constraint("Coincident", 61, 2, 62, 1))
sketch3.addConstraint(Sketcher.Constraint("Coincident", 62, 2, 63, 1))
sketch3.addConstraint(Sketcher.Constraint("Coincident", 63, 2, 64, 1))
sketch3.addConstraint(Sketcher.Constraint("Coincident", 64, 2, 65, 1))
sketch3.addConstraint(Sketcher.Constraint("Coincident", 65, 2, 66, 1))
sketch3.addConstraint(Sketcher.Constraint("Coincident", 66, 2, 67, 1))
sketch3.addConstraint(Sketcher.Constraint("Coincident", 67, 2, 68, 1))
sketch3.addConstraint(Sketcher.Constraint("Coincident", 68, 2, 69, 1))
sketch3.addConstraint(Sketcher.Constraint("Coincident", 69, 2, 70, 1))
sketch3.addConstraint(Sketcher.Constraint("Coincident", 70, 2, 71, 1))
sketch3.addConstraint(Sketcher.Constraint("Coincident", 71, 2, 60, 1))
sketch3.addConstraint(Sketcher.Constraint("Horizontal", 0))
sketch3.addConstraint(Sketcher.Constraint("Vertical", 1))
sketch3.addConstraint(Sketcher.Constraint("Horizontal", 2))
sketch3.addConstraint(Sketcher.Constraint("Vertical", 3))
sketch3.addConstraint(Sketcher.Constraint("Horizontal", 4))
sketch3.addConstraint(Sketcher.Constraint("Vertical", 5))
sketch3.addConstraint(Sketcher.Constraint("Horizontal", 6))
sketch3.addConstraint(Sketcher.Constraint("Vertical", 7))
sketch3.addConstraint(Sketcher.Constraint("Horizontal", 8))
sketch3.addConstraint(Sketcher.Constraint("Vertical", 9))
sketch3.addConstraint(Sketcher.Constraint("Horizontal", 10))
sketch3.addConstraint(Sketcher.Constraint("Vertical", 11))
sketch3.addConstraint(Sketcher.Constraint("Horizontal", 12))
sketch3.addConstraint(Sketcher.Constraint("Vertical", 13))
sketch3.addConstraint(Sketcher.Constraint("Horizontal", 14))
sketch3.addConstraint(Sketcher.Constraint("Vertical", 15))
sketch3.addConstraint(Sketcher.Constraint("Horizontal", 16))
sketch3.addConstraint(Sketcher.Constraint("Vertical", 17))
sketch3.addConstraint(Sketcher.Constraint("Horizontal", 18))
sketch3.addConstraint(Sketcher.Constraint("Vertical", 19))
sketch3.addConstraint(Sketcher.Constraint("Horizontal", 20))
sketch3.addConstraint(Sketcher.Constraint("Vertical", 21))
sketch3.addConstraint(Sketcher.Constraint("Horizontal", 22))
sketch3.addConstraint(Sketcher.Constraint("Vertical", 23))
sketch3.addConstraint(Sketcher.Constraint("Horizontal", 24))
sketch3.addConstraint(Sketcher.Constraint("Vertical", 25))
sketch3.addConstraint(Sketcher.Constraint("Horizontal", 26))
sketch3.addConstraint(Sketcher.Constraint("Vertical", 27))
sketch3.addConstraint(Sketcher.Constraint("Horizontal", 28))
sketch3.addConstraint(Sketcher.Constraint("Vertical", 29))
sketch3.addConstraint(Sketcher.Constraint("Horizontal", 30))
sketch3.addConstraint(Sketcher.Constraint("Vertical", 31))
sketch3.addConstraint(Sketcher.Constraint("Horizontal", 32))
sketch3.addConstraint(Sketcher.Constraint("Vertical", 33))
sketch3.addConstraint(Sketcher.Constraint("Horizontal", 34))
sketch3.addConstraint(Sketcher.Constraint("Vertical", 35))
sketch3.addConstraint(Sketcher.Constraint("Horizontal", 36))
sketch3.addConstraint(Sketcher.Constraint("Vertical", 37))
sketch3.addConstraint(Sketcher.Constraint("Horizontal", 38))
sketch3.addConstraint(Sketcher.Constraint("Vertical", 39))
sketch3.addConstraint(Sketcher.Constraint("Horizontal", 40))
sketch3.addConstraint(Sketcher.Constraint("Vertical", 41))
sketch3.addConstraint(Sketcher.Constraint("Horizontal", 42))
sketch3.addConstraint(Sketcher.Constraint("Vertical", 43))
sketch3.addConstraint(Sketcher.Constraint("Horizontal", 44))
sketch3.addConstraint(Sketcher.Constraint("Vertical", 45))
sketch3.addConstraint(Sketcher.Constraint("Horizontal", 46))
sketch3.addConstraint(Sketcher.Constraint("Vertical", 47))
sketch3.addConstraint(Sketcher.Constraint("Horizontal", 48))
sketch3.addConstraint(Sketcher.Constraint("Vertical", 49))
sketch3.addConstraint(Sketcher.Constraint("Horizontal", 50))
sketch3.addConstraint(Sketcher.Constraint("Vertical", 51))
sketch3.addConstraint(Sketcher.Constraint("Horizontal", 52))
sketch3.addConstraint(Sketcher.Constraint("Vertical", 53))
sketch3.addConstraint(Sketcher.Constraint("Horizontal", 54))
sketch3.addConstraint(Sketcher.Constraint("Vertical", 55))
sketch3.addConstraint(Sketcher.Constraint("Horizontal", 56))
sketch3.addConstraint(Sketcher.Constraint("Vertical", 57))
sketch3.addConstraint(Sketcher.Constraint("Horizontal", 58))
sketch3.addConstraint(Sketcher.Constraint("Vertical", 59))
sketch3.addConstraint(Sketcher.Constraint("Horizontal", 60))
sketch3.addConstraint(Sketcher.Constraint("Vertical", 61))
sketch3.addConstraint(Sketcher.Constraint("Horizontal", 62))
sketch3.addConstraint(Sketcher.Constraint("Vertical", 63))
sketch3.addConstraint(Sketcher.Constraint("Horizontal", 64))
sketch3.addConstraint(Sketcher.Constraint("Vertical", 65))
sketch3.addConstraint(Sketcher.Constraint("Horizontal", 66))
sketch3.addConstraint(Sketcher.Constraint("Vertical", 67))
sketch3.addConstraint(Sketcher.Constraint("Horizontal", 68))
sketch3.addConstraint(Sketcher.Constraint("Vertical", 69))
sketch3.addConstraint(Sketcher.Constraint("Horizontal", 70))
sketch3.addConstraint(Sketcher.Constraint("Vertical", 71))
sketch3.addConstraint(Sketcher.Constraint("Horizontal", 4, 2, 7, 2))
sketch3.addConstraint(Sketcher.Constraint("Horizontal", 2, 2, 9, 2))
sketch3.addConstraint(Sketcher.Constraint("Horizontal", 11, 2, 12, 2))
sketch3.addConstraint(Sketcher.Constraint("Horizontal", 10, 2, 13, 2))
sketch3.addConstraint(Sketcher.Constraint("Horizontal", 8, 2, 15, 2))
sketch3.addConstraint(Sketcher.Constraint("Horizontal", 6, 2, 17, 2))
sketch3.addConstraint(Sketcher.Constraint("Horizontal", 16, 2, 19, 2))
sketch3.addConstraint(Sketcher.Constraint("Horizontal", 14, 2, 21, 2))
sketch3.addConstraint(Sketcher.Constraint("Horizontal", 23, 2, 24, 2))
sketch3.addConstraint(Sketcher.Constraint("Horizontal", 22, 2, 25, 2))
sketch3.addConstraint(Sketcher.Constraint("Horizontal", 20, 2, 27, 2))
sketch3.addConstraint(Sketcher.Constraint("Horizontal", 18, 2, 29, 2))
sketch3.addConstraint(Sketcher.Constraint("Horizontal", 28, 2, 31, 2))
sketch3.addConstraint(Sketcher.Constraint("Horizontal", 26, 2, 33, 2))
sketch3.addConstraint(Sketcher.Constraint("Horizontal", 40, 2, 43, 2))
sketch3.addConstraint(Sketcher.Constraint("Horizontal", 38, 2, 45, 2))
sketch3.addConstraint(Sketcher.Constraint("Horizontal", 47, 2, 48, 2))
sketch3.addConstraint(Sketcher.Constraint("Horizontal", 46, 2, 49, 2))
sketch3.addConstraint(Sketcher.Constraint("Horizontal", 44, 2, 51, 2))
sketch3.addConstraint(Sketcher.Constraint("Horizontal", 42, 2, 53, 2))
sketch3.addConstraint(Sketcher.Constraint("Horizontal", 52, 2, 55, 2))
sketch3.addConstraint(Sketcher.Constraint("Horizontal", 50, 2, 57, 2))
sketch3.addConstraint(Sketcher.Constraint("Horizontal", 59, 2, 60, 2))
sketch3.addConstraint(Sketcher.Constraint("Horizontal", 58, 2, 61, 2))
sketch3.addConstraint(Sketcher.Constraint("Horizontal", 56, 2, 63, 2))
sketch3.addConstraint(Sketcher.Constraint("Horizontal", 54, 2, 65, 2))
sketch3.addConstraint(Sketcher.Constraint("Horizontal", 64, 2, 67, 2))
sketch3.addConstraint(Sketcher.Constraint("Horizontal", 62, 2, 69, 2))
sketch3.addConstraint(Sketcher.Constraint("Vertical", 1, 2, 4, 2))
sketch3.addConstraint(Sketcher.Constraint("Vertical", 7, 2, 10, 2))
sketch3.addConstraint(Sketcher.Constraint("Vertical", 13, 2, 16, 2))
sketch3.addConstraint(Sketcher.Constraint("Vertical", 19, 2, 22, 2))
sketch3.addConstraint(Sketcher.Constraint("Vertical", 25, 2, 28, 2))
sketch3.addConstraint(Sketcher.Constraint("Vertical", 31, 2, 34, 2))
sketch3.addConstraint(Sketcher.Constraint("Vertical", 29, 2, 36, 2))
sketch3.addConstraint(Sketcher.Constraint("Vertical", 27, 2, 38, 2))
sketch3.addConstraint(Sketcher.Constraint("Vertical", 37, 2, 40, 2))
sketch3.addConstraint(Sketcher.Constraint("Vertical", 35, 2, 42, 2))
sketch3.addConstraint(Sketcher.Constraint("Vertical", 33, 2, 44, 2))
sketch3.addConstraint(Sketcher.Constraint("Vertical", 43, 2, 46, 2))
sketch3.addConstraint(Sketcher.Constraint("Vertical", 17, 2, 48, 2))
sketch3.addConstraint(Sketcher.Constraint("Vertical", 15, 2, 50, 2))
sketch3.addConstraint(Sketcher.Constraint("Vertical", 49, 2, 52, 2))
sketch3.addConstraint(Sketcher.Constraint("Vertical", 23, 2, 54, 2))
sketch3.addConstraint(Sketcher.Constraint("Vertical", 21, 2, 56, 2))
sketch3.addConstraint(Sketcher.Constraint("Vertical", 55, 2, 58, 2))
sketch3.addConstraint(Sketcher.Constraint("Vertical", 5, 2, 60, 2))
sketch3.addConstraint(Sketcher.Constraint("Vertical", 3, 2, 62, 2))
sketch3.addConstraint(Sketcher.Constraint("Vertical", 61, 2, 64, 2))
sketch3.addConstraint(Sketcher.Constraint("Vertical", 11, 2, 66, 2))
sketch3.addConstraint(Sketcher.Constraint("Vertical", 9, 2, 68, 2))
sketch3.addConstraint(Sketcher.Constraint("Vertical", 67, 2, 70, 2))
sketch3.addConstraint(Sketcher.Constraint("Equal", 4, 8))
sketch3.addConstraint(Sketcher.Constraint("Equal", 6, 12))
sketch3.addConstraint(Sketcher.Constraint("Equal", 10, 14))
sketch3.addConstraint(Sketcher.Constraint("Equal", 16, 20))
sketch3.addConstraint(Sketcher.Constraint("Equal", 18, 24))
sketch3.addConstraint(Sketcher.Constraint("Equal", 22, 26))
sketch3.addConstraint(Sketcher.Constraint("Equal", 28, 32))
sketch3.addConstraint(Sketcher.Constraint("Equal", 66, 3))
sketch3.addConstraint(Sketcher.Constraint("Equal", 31, 37))
sketch3.addConstraint(Sketcher.Constraint("Equal", 33, 39))
sketch3.addConstraint(Sketcher.Constraint("Equal", 35, 41))
sketch3.addConstraint(Sketcher.Constraint("DistanceX", 0, 1, 0, 2, Q("3 mm")))
sketch3.addConstraint(Sketcher.Constraint("DistanceY", 1, 2, 1, 1, Q("7 mm")))
sketch3.addConstraint(Sketcher.Constraint("DistanceY", 5, 2, 5, 1, Q("8 mm")))
sketch3.addConstraint(Sketcher.Constraint("DistanceX", 2, 1, 2, 2, Q("3.34 mm")))
sketch3.addConstraint(Sketcher.Constraint("DistanceX", 0, 2, -1, 1, Q("45.564949 mm")))
sketch3.addConstraint(Sketcher.Constraint("DistanceX", -1, 1, 12, 2, Q("31.935051 mm")))
sketch3.addConstraint(Sketcher.Constraint("DistanceX", -1, 1, 24, 2, Q("109.435051 mm")))
sketch3.addConstraint(Sketcher.Constraint("DistanceY", -1, 1, 0, 2, Q("23.281076 mm")))
sketch3.addConstraint(Sketcher.Constraint("DistanceY", 36, 2, -1, 1, Q("3.718924 mm")))
pocket2 = doc.addObject("PartDesign::Pocket", "Pocket001")
body.addObject(pocket2)
pocket2.Profile = sketch3
pocket2.Type = "ThroughAll"
pocket2.Reversed = True

doc.recompute()
